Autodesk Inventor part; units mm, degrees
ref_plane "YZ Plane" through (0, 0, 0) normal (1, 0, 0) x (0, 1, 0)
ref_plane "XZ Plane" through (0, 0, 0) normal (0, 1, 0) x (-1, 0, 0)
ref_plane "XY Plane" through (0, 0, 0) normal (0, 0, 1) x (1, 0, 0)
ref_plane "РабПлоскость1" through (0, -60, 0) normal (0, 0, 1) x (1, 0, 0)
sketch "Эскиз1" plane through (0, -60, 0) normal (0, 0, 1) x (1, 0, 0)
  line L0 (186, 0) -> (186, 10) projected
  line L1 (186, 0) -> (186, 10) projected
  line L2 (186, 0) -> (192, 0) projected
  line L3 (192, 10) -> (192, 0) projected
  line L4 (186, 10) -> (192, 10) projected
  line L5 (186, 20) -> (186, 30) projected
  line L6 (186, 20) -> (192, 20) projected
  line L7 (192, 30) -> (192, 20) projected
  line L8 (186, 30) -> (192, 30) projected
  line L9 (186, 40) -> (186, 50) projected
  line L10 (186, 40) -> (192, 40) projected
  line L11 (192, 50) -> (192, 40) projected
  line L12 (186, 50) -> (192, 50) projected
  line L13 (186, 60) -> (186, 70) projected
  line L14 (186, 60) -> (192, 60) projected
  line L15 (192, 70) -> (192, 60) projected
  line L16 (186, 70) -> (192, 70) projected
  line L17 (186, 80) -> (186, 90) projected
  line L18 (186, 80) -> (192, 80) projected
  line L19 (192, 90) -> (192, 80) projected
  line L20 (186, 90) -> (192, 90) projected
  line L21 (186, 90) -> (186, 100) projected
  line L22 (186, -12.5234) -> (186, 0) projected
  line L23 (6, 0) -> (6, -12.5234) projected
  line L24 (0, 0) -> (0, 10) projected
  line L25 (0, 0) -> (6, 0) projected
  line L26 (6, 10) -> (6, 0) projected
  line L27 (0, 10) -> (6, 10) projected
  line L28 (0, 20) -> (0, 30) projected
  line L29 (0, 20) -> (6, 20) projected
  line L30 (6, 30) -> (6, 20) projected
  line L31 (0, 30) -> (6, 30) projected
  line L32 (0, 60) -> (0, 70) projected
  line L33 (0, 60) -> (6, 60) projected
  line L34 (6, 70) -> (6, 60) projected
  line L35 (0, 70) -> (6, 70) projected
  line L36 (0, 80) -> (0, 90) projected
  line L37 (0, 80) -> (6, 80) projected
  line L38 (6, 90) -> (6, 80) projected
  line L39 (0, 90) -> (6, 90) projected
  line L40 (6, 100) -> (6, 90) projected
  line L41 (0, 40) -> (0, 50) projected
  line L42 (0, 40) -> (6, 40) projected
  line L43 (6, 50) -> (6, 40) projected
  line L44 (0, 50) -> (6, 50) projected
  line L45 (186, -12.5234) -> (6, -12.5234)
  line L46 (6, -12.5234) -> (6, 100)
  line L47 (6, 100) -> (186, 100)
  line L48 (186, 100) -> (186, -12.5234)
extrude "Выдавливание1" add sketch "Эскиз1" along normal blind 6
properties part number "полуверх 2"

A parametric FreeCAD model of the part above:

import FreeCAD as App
import Part
import Sketcher

V = App.Vector
Q = App.Units.Quantity


def add_polygon(sketch, points):
    """Adds a closed chain of lines whose ends are joined by coincident constraints."""
    first, n = sketch.GeometryCount, len(points)
    for a, b in zip(points, points[1:] + points[:1]):
        sketch.addGeometry(Part.LineSegment(App.Vector(*a, 0), App.Vector(*b, 0)), False)
    for i in range(n):
        sketch.addConstraint(Sketcher.Constraint("Coincident", first + i, 2, first + (i + 1) % n, 1))

doc = App.newDocument("Part")
body = doc.addObject("PartDesign::Body", "Body")

sketch1 = doc.addObject("Sketcher::SketchObject", "Sketch")
body.addObject(sketch1)
sketch1.AttachmentSupport = (doc.XY_Plane, [""])
sketch1.MapMode = "FlatFace"
add_polygon(sketch1, [(186, -73), (186, -60), (192, -60), (192, -50), (186, -50), (186, -40), (192, -40), (192, -30), (186, -30), (186, -20), (192, -20), (192, -10), (186, -10), (186, 0), (192, 0), (192, 10), (186, 10), (186, 20), (192, 20), (192, 30), (186, 30), (186, 40), (6, 40), (6, 30), (0, 30), (0, 20), (6, 20), (6, 10), (0, 10), (0, 0), (6, 0), (6, -10), (0, -10), (0, -20), (6, -20), (6, -30), (0, -30), (0, -40), (6, -40), (6, -50), (0, -50), (0, -60), (6, -60), (6, -73)])
sketch1.addConstraint(Sketcher.Constraint("Vertical", 0))
sketch1.addConstraint(Sketcher.Constraint("Horizontal", 1))
sketch1.addConstraint(Sketcher.Constraint("Vertical", 2))
sketch1.addConstraint(Sketcher.Constraint("Horizontal", 3))
sketch1.addConstraint(Sketcher.Constraint("Vertical", 4))
sketch1.addConstraint(Sketcher.Constraint("Horizontal", 5))
sketch1.addConstraint(Sketcher.Constraint("Vertical", 6))
sketch1.addConstraint(Sketcher.Constraint("Horizontal", 7))
sketch1.addConstraint(Sketcher.Constraint("Vertical", 8))
sketch1.addConstraint(Sketcher.Constraint("Horizontal", 9))
sketch1.addConstraint(Sketcher.Constraint("Vertical", 10))
sketch1.addConstraint(Sketcher.Constraint("Horizontal", 11))
sketch1.addConstraint(Sketcher.Constraint("Vertical", 12))
sketch1.addConstraint(Sketcher.Constraint("Horizontal", 13))
sketch1.addConstraint(Sketcher.Constraint("Vertical", 14))
sketch1.addConstraint(Sketcher.Constraint("Horizontal", 15))
sketch1.addConstraint(Sketcher.Constraint("Vertical", 16))
sketch1.addConstraint(Sketcher.Constraint("Horizontal", 17))
sketch1.addConstraint(Sketcher.Constraint("Vertical", 18))
sketch1.addConstraint(Sketcher.Constraint("Horizontal", 19))
sketch1.addConstraint(Sketcher.Constraint("Vertical", 20))
sketch1.addConstraint(Sketcher.Constraint("Horizontal", 21))
sketch1.addConstraint(Sketcher.Constraint("Vertical", 22))
sketch1.addConstraint(Sketcher.Constraint("Horizontal", 23))
sketch1.addConstraint(Sketcher.Constraint("Vertical", 24))
sketch1.addConstraint(Sketcher.Constraint("Horizontal", 25))
sketch1.addConstraint(Sketcher.Constraint("Vertical", 26))
sketch1.addConstraint(Sketcher.Constraint("Horizontal", 27))
sketch1.addConstraint(Sketcher.Constraint("Vertical", 28))
sketch1.addConstraint(Sketcher.Constraint("Horizontal", 29))
sketch1.addConstraint(Sketcher.Constraint("Vertical", 30))
sketch1.addConstraint(Sketcher.Constraint("Horizontal", 31))
sketch1.addConstraint(Sketcher.Constraint("Vertical", 32))
sketch1.addConstraint(Sketcher.Constraint("Horizontal", 33))
sketch1.addConstraint(Sketcher.Constraint("Vertical", 34))
sketch1.addConstraint(Sketcher.Constraint("Horizontal", 35))
sketch1.addConstraint(Sketcher.Constraint("Vertical", 36))
sketch1.addConstraint(Sketcher.Constraint("Horizontal", 37))
sketch1.addConstraint(Sketcher.Constraint("Vertical", 38))
sketch1.addConstraint(Sketcher.Constraint("Horizontal", 39))
sketch1.addConstraint(Sketcher.Constraint("Vertical", 40))
sketch1.addConstraint(Sketcher.Constraint("Horizontal", 41))
sketch1.addConstraint(Sketcher.Constraint("Vertical", 42))
sketch1.addConstraint(Sketcher.Constraint("Horizontal", 43))
sketch1.addConstraint(Sketcher.Constraint("Coincident", 28, 2, -1, 1))
sketch1.addConstraint(Sketcher.Constraint("Symmetric", 27, 2, 31, 2, -1, 1))
sketch1.addConstraint(Sketcher.Constraint("Symmetric", 24, 2, 32, 2, -1, 1))
sketch1.addConstraint(Sketcher.Constraint("Symmetric", 23, 2, 35, 2, -1, 1))
sketch1.addConstraint(Sketcher.Constraint("Symmetric", 10, 2, 14, 2, -1))
sketch1.addConstraint(Sketcher.Constraint("Symmetric", 8, 2, 16, 2, -1))
sketch1.addConstraint(Sketcher.Constraint("Symmetric", 6, 2, 18, 2, -1))
sketch1.addConstraint(Sketcher.Constraint("Symmetric", 4, 2, 20, 2, -1))
sketch1.addConstraint(Sketcher.Constraint("Symmetric", 21, 2, 37, 2, -1))
sketch1.addConstraint(Sketcher.Constraint("PointOnObject", 12, 2, -1))
sketch1.addConstraint(Sketcher.Constraint("PointOnObject", 39, 2, -2))
sketch1.addConstraint(Sketcher.Constraint("Horizontal", 19, 2, 22, 2))
sketch1.addConstraint(Sketcher.Constraint("Horizontal", 17, 2, 24, 2))
sketch1.addConstraint(Sketcher.Constraint("Horizontal", 15, 2, 26, 2))
sketch1.addConstraint(Sketcher.Constraint("Horizontal", 3, 2, 38, 2))
sketch1.addConstraint(Sketcher.Constraint("Horizontal", 1, 2, 40, 2))
sketch1.addConstraint(Sketcher.Constraint("Vertical", 0, 2, 3, 2))
sketch1.addConstraint(Sketcher.Constraint("Vertical", 2, 2, 5, 2))
sketch1.addConstraint(Sketcher.Constraint("Vertical", 4, 2, 7, 2))
sketch1.addConstraint(Sketcher.Constraint("Vertical", 6, 2, 9, 2))
sketch1.addConstraint(Sketcher.Constraint("Vertical", 8, 2, 11, 2))
sketch1.addConstraint(Sketcher.Constraint("Vertical", 22, 2, 25, 2))
sketch1.addConstraint(Sketcher.Constraint("Vertical", 26, 2, 29, 2))
sketch1.addConstraint(Sketcher.Constraint("Vertical", 30, 2, 33, 2))
sketch1.addConstraint(Sketcher.Constraint("Vertical", 38, 2, 41, 2))
sketch1.addConstraint(Sketcher.Constraint("Equal", 19, 23))
sketch1.addConstraint(Sketcher.Constraint("Equal", 2, 4))
sketch1.addConstraint(Sketcher.Constraint("Equal", 4, 6))
sketch1.addConstraint(Sketcher.Constraint("Equal", 6, 8))
sketch1.addConstraint(Sketcher.Constraint("Equal", 8, 10))
sketch1.addConstraint(Sketcher.Constraint("Equal", 10, 12))
sketch1.addConstraint(Sketcher.Constraint("DistanceX", 1, 1, 1, 2, Q("6 mm")))
sketch1.addConstraint(Sketcher.Constraint("DistanceX", 21, 2, 21, 1, Q("180 mm")))
sketch1.addConstraint(Sketcher.Constraint("DistanceY", 2, 1, 2, 2, Q("10 mm")))
sketch1.addConstraint(Sketcher.Constraint("DistanceY", 0, 1, 0, 2, Q("12.5234 mm")))
pad1 = doc.addObject("PartDesign::Pad", "Pad")
body.addObject(pad1)
pad1.Profile = sketch1
pad1.Length = 6

doc.recompute()
